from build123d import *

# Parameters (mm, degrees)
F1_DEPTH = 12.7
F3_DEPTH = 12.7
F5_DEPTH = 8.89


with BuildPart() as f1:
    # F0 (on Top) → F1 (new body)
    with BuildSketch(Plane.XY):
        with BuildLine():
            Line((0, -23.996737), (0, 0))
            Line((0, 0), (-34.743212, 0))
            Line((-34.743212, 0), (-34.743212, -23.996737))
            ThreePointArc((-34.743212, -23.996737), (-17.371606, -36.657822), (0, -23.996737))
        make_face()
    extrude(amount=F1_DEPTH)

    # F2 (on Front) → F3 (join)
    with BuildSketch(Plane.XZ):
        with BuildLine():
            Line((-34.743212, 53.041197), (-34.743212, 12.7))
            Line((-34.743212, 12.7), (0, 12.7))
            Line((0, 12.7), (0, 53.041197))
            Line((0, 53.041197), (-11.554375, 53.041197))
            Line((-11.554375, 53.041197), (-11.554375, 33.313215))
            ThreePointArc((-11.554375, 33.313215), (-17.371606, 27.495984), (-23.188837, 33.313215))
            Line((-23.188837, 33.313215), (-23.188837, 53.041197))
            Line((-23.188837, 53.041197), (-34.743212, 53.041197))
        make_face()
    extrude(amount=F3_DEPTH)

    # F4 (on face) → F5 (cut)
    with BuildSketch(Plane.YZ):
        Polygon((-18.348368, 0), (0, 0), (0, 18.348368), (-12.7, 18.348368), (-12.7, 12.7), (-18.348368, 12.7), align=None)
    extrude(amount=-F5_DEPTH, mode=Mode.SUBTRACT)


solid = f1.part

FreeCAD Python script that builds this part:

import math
import FreeCAD as App
import Part
import Sketcher
Q = App.Units.Quantity


def add_polygon(sketch, points):
    """Adds a closed chain of lines whose ends are joined by coincident constraints."""
    first, n = sketch.GeometryCount, len(points)
    for a, b in zip(points, points[1:] + points[:1]):
        sketch.addGeometry(Part.LineSegment(App.Vector(*a, 0), App.Vector(*b, 0)), False)
    for i in range(n):
        sketch.addConstraint(Sketcher.Constraint("Coincident", first + i, 2, first + (i + 1) % n, 1))

doc = App.newDocument("Part")
body = doc.addObject("PartDesign::Body", "Body")

# Sketch on XY plane
sketch1 = body.newObject("Sketcher::SketchObject", "Sketch")
sketch1.AttachmentSupport = (doc.getObject("XY_Plane"), [""])
sketch1.MapMode = "FlatFace"
sketch1.addGeometry([
    Part.LineSegment(App.Vector(0, -23.996737, 0), App.Vector(0, 0, 0)),
    Part.LineSegment(App.Vector(0, 0, 0), App.Vector(-34.743212, 0, 0)),
    Part.LineSegment(App.Vector(-34.743212, 0, 0), App.Vector(-34.743212, -23.996737, 0)),
    Part.ArcOfCircle(Part.Circle(App.Vector(-17.371606, -18.409948, 0), App.Vector(0, 0, 1), 18.247874), math.radians(-162.171968), math.radians(-17.828032)),
], False)
sketch1.addConstraint([
    Sketcher.Constraint("Coincident", 0, 2, 1, 1),
    Sketcher.Constraint("Coincident", 1, 2, 2, 1),
    Sketcher.Constraint("Coincident", 2, 2, 3, 1),
    Sketcher.Constraint("Coincident", 3, 2, 0, 1),
    Sketcher.Constraint("Vertical", 0),
    Sketcher.Constraint("Horizontal", 1),
    Sketcher.Constraint("Vertical", 2),
    Sketcher.Constraint("Coincident", 0, 2, -1, 1),
    Sketcher.Constraint("Horizontal", 2, 2, 3, 2),
    Sketcher.Constraint("Radius", 3, 18.247874),
    Sketcher.Constraint("DistanceX", 1, 2, 1, 1, 34.743212),
    Sketcher.Constraint("DistanceY", 0, 1, 0, 2, 23.996737),
])
pad1 = body.newObject("PartDesign::Pad", "Pad")
pad1.Profile = sketch1
pad1.Length = Q("0.5 in")

# Sketch on XZ plane
sketch2 = body.newObject("Sketcher::SketchObject", "Sketch001")
sketch2.AttachmentSupport = (doc.getObject("XZ_Plane"), [""])
sketch2.MapMode = "FlatFace"
sketch2.addGeometry([
    Part.LineSegment(App.Vector(-34.743212, 53.041197, 0), App.Vector(-34.743212, 12.7, 0)),  # 0
    Part.LineSegment(App.Vector(-34.743212, 12.7, 0), App.Vector(0, 12.7, 0)),  # 1
    Part.LineSegment(App.Vector(0, 12.7, 0), App.Vector(0, 53.041197, 0)),  # 2
    Part.LineSegment(App.Vector(0, 53.041197, 0), App.Vector(-11.554375, 53.041197, 0)),  # 3
    Part.LineSegment(App.Vector(-11.554375, 53.041197, 0), App.Vector(-11.554375, 33.313215, 0)),  # 4
    Part.ArcOfCircle(Part.Circle(App.Vector(-17.371606, 33.313215, 0), App.Vector(0, 0, 1), 5.817231), math.radians(180), math.radians(360)),  # 5
    Part.LineSegment(App.Vector(-23.188837, 33.313215, 0), App.Vector(-23.188837, 53.041197, 0)),  # 6
    Part.LineSegment(App.Vector(-23.188837, 53.041197, 0), App.Vector(-34.743212, 53.041197, 0)),  # 7
], False)
sketch2.addConstraint([
    Sketcher.Constraint("Coincident", 0, 2, 1, 1),
    Sketcher.Constraint("Coincident", 1, 2, 2, 1),
    Sketcher.Constraint("Coincident", 2, 2, 3, 1),
    Sketcher.Constraint("Coincident", 3, 2, 4, 1),
    Sketcher.Constraint("Tangent", 4, 2, 5, 2),
    Sketcher.Constraint("Tangent", 5, 1, 6, 1),
    Sketcher.Constraint("Coincident", 6, 2, 7, 1),
    Sketcher.Constraint("Coincident", 7, 2, 0, 1),
    Sketcher.Constraint("Vertical", 0),
    Sketcher.Constraint("Horizontal", 1),
    Sketcher.Constraint("Vertical", 2),
    Sketcher.Constraint("Horizontal", 3),
    Sketcher.Constraint("Vertical", 4),
    Sketcher.Constraint("Vertical", 6),
    Sketcher.Constraint("Horizontal", 7),
    Sketcher.Constraint("PointOnObject", 1, 2, -2),
    Sketcher.Constraint("Horizontal", 3, 2, 6, 2),
    Sketcher.Constraint("Equal", 3, 7),
    Sketcher.Constraint("DistanceY", -1, 1, 0, 2, Q("0.5 in")),
    Sketcher.Constraint("Radius", 5, 5.817231),
    Sketcher.Constraint("DistanceY", 4, 2, 4, 1, 19.727982),
    Sketcher.Constraint("DistanceX", 1, 1, 1, 2, 34.743212),
    Sketcher.Constraint("DistanceY", 0, 2, 0, 1, 40.341197),
])
pad2 = body.newObject("PartDesign::Pad", "Pad001")
pad2.Profile = sketch2
pad2.Length = Q("0.5 in")

# Sketch on YZ plane
sketch3 = body.newObject("Sketcher::SketchObject", "Sketch002")
sketch3.AttachmentSupport = (doc.getObject("YZ_Plane"), [""])
sketch3.MapMode = "FlatFace"
add_polygon(sketch3, [(-18.348368, 0), (0, 0), (0, 18.348368), (-12.7, 18.348368), (-12.7, 12.7), (-18.348368, 12.7)])  # lines 0-5
sketch3.addConstraint([
    Sketcher.Constraint("Horizontal", 0),
    Sketcher.Constraint("Vertical", 1),
    Sketcher.Constraint("Horizontal", 2),
    Sketcher.Constraint("Vertical", 3),
    Sketcher.Constraint("Horizontal", 4),
    Sketcher.Constraint("Vertical", 5),
    Sketcher.Constraint("Coincident", 0, 2, -1, 1),
    Sketcher.Constraint("Equal", 0, 1),
    Sketcher.Constraint("Equal", 4, 3),
    Sketcher.Constraint("DistanceX", 2, 2, 2, 1, Q("0.5 in")),
    Sketcher.Constraint("DistanceX", 0, 1, 0, 2, 18.348368),
])
pocket1 = body.newObject("PartDesign::Pocket", "Pocket")
pocket1.Profile = sketch3
pocket1.Length = Q("0.35 in")

doc.recompute()
